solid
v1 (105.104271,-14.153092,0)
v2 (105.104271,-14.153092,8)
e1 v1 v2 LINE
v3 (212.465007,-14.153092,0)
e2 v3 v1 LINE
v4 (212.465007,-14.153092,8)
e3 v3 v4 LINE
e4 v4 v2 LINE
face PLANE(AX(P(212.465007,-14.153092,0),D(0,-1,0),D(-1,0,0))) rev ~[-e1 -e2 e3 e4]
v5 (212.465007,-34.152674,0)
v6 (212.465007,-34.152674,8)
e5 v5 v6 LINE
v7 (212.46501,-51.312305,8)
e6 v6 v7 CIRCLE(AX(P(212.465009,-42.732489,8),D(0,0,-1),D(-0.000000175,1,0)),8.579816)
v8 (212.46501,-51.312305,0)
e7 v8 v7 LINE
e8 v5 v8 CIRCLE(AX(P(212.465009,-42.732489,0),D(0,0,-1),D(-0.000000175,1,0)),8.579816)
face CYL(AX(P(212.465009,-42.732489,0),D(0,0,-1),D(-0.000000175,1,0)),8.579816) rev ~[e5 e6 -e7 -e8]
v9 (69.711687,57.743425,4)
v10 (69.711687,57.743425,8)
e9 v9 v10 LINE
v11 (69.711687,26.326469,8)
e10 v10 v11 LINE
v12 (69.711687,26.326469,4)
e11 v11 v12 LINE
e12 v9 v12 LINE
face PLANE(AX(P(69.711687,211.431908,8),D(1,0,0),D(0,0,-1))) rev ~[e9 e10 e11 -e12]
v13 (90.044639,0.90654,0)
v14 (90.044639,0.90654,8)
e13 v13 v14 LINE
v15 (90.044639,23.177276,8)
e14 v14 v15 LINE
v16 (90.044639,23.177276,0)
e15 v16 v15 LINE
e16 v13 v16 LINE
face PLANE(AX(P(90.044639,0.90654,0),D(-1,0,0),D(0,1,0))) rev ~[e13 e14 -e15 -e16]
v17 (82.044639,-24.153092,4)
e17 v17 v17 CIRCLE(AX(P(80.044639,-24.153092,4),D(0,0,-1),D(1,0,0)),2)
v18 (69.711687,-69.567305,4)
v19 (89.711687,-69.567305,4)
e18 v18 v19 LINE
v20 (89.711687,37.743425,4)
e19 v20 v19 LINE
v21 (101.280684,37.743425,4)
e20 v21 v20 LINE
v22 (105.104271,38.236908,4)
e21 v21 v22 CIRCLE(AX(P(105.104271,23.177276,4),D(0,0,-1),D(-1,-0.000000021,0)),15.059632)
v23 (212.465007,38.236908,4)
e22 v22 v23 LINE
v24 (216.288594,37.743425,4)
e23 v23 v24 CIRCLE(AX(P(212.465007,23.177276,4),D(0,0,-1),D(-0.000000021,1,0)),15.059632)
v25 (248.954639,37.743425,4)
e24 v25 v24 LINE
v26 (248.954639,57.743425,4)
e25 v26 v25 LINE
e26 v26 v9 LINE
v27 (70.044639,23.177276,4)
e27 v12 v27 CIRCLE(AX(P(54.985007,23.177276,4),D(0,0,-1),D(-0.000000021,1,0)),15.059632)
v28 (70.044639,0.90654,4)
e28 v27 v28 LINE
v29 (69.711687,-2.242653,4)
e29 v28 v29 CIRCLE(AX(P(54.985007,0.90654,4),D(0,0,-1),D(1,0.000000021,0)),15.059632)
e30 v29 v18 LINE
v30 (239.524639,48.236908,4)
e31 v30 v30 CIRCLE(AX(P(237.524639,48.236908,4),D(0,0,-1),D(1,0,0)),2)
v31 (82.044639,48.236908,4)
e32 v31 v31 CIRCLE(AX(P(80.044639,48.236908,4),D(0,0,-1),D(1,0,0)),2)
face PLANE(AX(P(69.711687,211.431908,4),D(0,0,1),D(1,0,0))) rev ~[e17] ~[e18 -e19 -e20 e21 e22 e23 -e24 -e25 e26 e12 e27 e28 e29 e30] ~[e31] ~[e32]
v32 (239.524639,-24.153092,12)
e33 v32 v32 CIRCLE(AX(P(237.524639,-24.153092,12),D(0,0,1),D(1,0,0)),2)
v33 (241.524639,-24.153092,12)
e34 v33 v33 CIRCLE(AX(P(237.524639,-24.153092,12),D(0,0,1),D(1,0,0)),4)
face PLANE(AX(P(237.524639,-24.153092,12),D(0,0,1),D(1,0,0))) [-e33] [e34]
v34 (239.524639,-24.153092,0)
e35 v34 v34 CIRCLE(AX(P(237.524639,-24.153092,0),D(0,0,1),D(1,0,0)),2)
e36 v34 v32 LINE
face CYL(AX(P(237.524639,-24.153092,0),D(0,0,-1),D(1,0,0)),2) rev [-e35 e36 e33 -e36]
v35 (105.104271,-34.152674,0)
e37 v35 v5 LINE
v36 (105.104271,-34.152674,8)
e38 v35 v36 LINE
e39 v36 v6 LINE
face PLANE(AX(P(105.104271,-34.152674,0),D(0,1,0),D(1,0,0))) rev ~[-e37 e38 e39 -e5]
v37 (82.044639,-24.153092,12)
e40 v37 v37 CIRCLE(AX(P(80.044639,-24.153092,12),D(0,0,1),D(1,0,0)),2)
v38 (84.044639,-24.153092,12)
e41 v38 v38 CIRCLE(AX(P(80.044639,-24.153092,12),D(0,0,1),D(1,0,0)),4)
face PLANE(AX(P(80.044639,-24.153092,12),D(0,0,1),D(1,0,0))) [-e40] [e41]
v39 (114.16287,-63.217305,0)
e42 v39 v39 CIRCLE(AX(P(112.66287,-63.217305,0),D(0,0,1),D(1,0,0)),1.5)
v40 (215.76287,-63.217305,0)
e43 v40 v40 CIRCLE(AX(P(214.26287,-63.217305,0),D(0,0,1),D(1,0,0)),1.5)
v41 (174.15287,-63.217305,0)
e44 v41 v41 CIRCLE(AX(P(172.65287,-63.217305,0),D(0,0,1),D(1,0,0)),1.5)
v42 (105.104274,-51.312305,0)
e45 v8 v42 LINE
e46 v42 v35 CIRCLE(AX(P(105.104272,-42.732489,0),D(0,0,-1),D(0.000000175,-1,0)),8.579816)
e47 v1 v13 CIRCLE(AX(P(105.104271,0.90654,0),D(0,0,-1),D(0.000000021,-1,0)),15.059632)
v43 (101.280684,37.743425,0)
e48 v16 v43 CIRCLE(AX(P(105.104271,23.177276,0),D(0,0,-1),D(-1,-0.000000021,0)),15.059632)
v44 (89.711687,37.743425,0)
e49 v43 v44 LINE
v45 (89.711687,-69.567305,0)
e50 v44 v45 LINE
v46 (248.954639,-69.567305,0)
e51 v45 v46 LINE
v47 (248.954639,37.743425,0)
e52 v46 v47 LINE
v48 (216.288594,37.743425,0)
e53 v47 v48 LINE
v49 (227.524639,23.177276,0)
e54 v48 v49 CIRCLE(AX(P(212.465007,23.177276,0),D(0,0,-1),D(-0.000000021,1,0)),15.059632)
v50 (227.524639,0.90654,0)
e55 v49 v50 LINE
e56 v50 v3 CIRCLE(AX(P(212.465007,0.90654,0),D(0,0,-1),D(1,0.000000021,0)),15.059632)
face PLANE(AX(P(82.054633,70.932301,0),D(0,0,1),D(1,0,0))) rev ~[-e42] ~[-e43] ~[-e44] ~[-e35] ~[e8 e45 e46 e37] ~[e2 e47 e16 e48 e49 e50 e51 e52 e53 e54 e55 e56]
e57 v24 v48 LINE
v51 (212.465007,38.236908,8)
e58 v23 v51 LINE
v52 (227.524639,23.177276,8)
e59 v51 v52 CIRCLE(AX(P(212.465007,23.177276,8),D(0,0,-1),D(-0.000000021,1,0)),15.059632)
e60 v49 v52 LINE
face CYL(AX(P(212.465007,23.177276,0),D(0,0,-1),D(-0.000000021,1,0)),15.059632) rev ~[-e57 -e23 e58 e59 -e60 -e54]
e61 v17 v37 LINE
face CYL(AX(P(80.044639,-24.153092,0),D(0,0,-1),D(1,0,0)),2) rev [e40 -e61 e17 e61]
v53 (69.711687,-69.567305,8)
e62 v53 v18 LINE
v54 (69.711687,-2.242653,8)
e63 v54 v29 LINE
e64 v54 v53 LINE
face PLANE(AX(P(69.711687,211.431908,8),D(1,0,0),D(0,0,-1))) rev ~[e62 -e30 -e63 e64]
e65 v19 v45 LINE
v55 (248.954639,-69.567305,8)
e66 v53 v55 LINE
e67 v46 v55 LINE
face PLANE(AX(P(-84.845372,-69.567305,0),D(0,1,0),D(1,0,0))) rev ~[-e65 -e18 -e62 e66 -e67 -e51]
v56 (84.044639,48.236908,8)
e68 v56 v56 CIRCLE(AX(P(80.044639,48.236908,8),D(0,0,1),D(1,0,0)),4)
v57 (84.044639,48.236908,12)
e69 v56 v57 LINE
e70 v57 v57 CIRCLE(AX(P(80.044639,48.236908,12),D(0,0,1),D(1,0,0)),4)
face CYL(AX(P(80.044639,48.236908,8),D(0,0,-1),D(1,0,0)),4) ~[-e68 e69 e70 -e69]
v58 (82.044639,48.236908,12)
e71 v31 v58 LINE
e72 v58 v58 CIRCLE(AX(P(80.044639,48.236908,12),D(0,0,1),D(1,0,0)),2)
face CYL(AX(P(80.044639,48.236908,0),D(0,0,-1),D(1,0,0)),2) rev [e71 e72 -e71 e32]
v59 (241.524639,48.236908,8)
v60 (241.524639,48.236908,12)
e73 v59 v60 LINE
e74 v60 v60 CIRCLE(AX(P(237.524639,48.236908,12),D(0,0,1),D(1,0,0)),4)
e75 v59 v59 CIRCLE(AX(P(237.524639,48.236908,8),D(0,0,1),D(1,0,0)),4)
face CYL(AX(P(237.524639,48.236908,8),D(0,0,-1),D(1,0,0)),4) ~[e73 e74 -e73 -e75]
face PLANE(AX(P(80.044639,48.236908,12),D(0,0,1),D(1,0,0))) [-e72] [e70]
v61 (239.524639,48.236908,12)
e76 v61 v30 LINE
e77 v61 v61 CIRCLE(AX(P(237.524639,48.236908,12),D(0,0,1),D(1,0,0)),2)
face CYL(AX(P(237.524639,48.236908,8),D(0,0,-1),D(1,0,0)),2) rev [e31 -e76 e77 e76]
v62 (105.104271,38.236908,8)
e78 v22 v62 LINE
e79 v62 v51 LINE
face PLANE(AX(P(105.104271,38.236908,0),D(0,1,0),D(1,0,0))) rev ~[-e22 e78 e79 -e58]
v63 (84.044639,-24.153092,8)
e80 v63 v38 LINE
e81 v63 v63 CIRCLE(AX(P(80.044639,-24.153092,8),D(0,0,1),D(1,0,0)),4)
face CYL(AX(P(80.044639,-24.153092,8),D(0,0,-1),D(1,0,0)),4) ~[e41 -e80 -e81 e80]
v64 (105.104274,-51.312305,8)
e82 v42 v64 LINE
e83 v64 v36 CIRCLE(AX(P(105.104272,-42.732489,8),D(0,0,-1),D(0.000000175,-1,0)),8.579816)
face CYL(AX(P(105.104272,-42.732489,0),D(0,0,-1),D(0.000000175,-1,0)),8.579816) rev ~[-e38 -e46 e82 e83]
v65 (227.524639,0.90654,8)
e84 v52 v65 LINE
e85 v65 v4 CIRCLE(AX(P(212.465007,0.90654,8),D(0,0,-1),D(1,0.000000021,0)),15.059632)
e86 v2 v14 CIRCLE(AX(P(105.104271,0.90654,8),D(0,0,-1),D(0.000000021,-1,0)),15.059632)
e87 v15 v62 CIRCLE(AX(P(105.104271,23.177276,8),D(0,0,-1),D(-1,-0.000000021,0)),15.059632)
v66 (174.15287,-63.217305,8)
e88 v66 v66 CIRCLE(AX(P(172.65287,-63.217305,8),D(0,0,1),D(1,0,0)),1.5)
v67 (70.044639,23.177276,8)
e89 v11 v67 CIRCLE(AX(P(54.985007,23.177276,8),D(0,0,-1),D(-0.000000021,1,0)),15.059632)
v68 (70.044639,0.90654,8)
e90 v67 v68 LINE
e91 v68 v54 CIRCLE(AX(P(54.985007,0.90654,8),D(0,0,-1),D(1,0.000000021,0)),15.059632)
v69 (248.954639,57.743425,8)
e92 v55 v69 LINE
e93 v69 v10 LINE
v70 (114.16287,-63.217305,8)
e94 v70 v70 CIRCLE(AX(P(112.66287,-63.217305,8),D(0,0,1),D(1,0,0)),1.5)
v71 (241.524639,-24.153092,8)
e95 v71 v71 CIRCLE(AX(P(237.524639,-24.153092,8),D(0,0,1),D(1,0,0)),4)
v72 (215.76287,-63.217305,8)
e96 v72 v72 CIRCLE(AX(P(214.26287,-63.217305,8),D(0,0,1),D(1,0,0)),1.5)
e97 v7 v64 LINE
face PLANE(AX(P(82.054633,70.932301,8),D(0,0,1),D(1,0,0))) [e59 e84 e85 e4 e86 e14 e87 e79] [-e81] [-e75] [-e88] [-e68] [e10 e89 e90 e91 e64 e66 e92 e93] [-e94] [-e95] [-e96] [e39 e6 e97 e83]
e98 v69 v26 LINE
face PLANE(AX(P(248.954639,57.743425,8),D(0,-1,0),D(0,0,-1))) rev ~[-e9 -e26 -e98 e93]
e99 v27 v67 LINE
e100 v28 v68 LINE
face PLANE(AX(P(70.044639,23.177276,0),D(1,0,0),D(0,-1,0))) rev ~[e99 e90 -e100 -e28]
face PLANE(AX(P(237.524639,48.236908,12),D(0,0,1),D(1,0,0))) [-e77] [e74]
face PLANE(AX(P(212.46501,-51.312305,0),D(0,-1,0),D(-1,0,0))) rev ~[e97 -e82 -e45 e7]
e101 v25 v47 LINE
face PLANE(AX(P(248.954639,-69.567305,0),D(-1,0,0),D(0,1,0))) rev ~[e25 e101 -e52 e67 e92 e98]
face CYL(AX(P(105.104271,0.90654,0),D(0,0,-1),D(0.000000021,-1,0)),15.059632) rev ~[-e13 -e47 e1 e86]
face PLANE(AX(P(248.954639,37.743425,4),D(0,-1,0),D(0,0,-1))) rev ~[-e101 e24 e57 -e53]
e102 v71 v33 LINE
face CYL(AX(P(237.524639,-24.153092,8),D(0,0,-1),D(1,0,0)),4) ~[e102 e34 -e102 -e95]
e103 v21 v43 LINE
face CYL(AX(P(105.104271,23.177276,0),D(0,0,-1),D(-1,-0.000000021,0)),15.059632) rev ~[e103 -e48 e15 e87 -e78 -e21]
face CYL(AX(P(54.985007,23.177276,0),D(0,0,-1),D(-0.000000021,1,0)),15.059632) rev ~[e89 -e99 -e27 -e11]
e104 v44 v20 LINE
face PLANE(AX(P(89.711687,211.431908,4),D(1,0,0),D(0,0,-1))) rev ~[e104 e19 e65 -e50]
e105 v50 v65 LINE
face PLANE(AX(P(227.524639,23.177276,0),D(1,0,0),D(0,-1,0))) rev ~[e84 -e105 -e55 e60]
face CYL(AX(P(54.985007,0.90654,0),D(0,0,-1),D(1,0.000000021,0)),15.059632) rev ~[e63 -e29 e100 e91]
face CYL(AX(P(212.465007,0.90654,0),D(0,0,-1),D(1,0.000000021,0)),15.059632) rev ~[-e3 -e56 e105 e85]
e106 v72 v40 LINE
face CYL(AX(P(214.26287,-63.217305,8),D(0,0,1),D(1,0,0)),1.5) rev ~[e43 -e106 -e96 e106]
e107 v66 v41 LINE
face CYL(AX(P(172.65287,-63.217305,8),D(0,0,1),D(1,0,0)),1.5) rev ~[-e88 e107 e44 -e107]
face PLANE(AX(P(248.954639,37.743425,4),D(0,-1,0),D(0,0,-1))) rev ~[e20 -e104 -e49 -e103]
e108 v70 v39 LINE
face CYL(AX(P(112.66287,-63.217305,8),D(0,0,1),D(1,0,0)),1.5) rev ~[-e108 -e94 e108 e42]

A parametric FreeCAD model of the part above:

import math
import FreeCAD as App
import Part
import Sketcher
Q = App.Units.Quantity


def add_polygon(sketch, points):
    """Adds a closed chain of lines whose ends are joined by coincident constraints."""
    first, n = sketch.GeometryCount, len(points)
    for a, b in zip(points, points[1:] + points[:1]):
        sketch.addGeometry(Part.LineSegment(App.Vector(*a, 0), App.Vector(*b, 0)), False)
    for i in range(n):
        sketch.addConstraint(Sketcher.Constraint("Coincident", first + i, 2, first + (i + 1) % n, 1))

doc = App.newDocument("Part")
params = doc.addObject("Spreadsheet::Sheet", "Params")
for row, (alias, value) in enumerate([
    ("sketch1_diameter", "4 mm"),
    ("sketch1_height", "22.86 mm"),
    ("pad1_length", "8 mm"),
    ("sketch2_width", "100 mm"),
    ("sketch2_width2", "3 mm"),
    ("sketch2_height", "140 mm"),
    ("pad2_length", "185 mm"),
    ("sketch3_width", "135 mm"),
    ("sketch3_height", "153 mm"),
    ("pocket1_length", "5 mm"),
    ("sketch4_diameter", "5 mm"),
    ("sketch4_width", "65 mm"),
    ("sketch4_height", "93 mm"),
    ("sketch4_height2", "30 mm"),
    ("sketch4_width2", "62.5 mm"),
    ("pocket2_length", "5 mm"),
    ("sketch5_width", "96 mm"),
    ("pad3_length", "3 mm"),
    ("sketch6_diameter", "8 mm"),
    ("sketch6_diameter2", "4 mm"),
    ("pad4_length", "4 mm"),
    ("sketch7_width", "20 mm"),
    ("sketch7_height", "4 mm"),
    ("pocket3_length", "340 mm"),
    ("sketch8_width", "20 mm"),
    ("sketch8_height", "4 mm"),
    ("pocket4_length", "320 mm"),
    ("sketch9_diameter", "3 mm"),
    ("pocket5_length", "25 mm"),
], start=1):
    params.set(f"A{row}", alias)
    params.set(f"B{row}", "=" + value)
    params.setAlias(f"B{row}", alias)

body = doc.addObject("PartDesign::Body", "Body")
body.AllowCompound = True

# Sketch on XY plane
sketch1 = body.newObject("Sketcher::SketchObject", "Sketch")
sketch1.AttachmentSupport = (doc.getObject("XY_Plane"), [""])
sketch1.MapMode = "FlatFace"
add_polygon(sketch1, [(249, 211.4), (-84.8, 211.4), (-84.8, -69.6), (249, -69.6)])  # lines 0-3
sketch1.addGeometry(Part.Circle(App.Vector(-44.4, -24.2, 0), App.Vector(0, 0, 1), 2), False)  # 4
sketch1.addGeometry(Part.ArcOfCircle(Part.Circle(App.Vector(-60.3, 33.2, 0), App.Vector(0, 0, 1), 5.9), math.radians(0), math.radians(180)), False)  # 5
sketch1.addGeometry(Part.LineSegment(App.Vector(-54.4, 33.2, 0), App.Vector(-54.4, -42.7, 0)), False)  # 6
sketch1.addGeometry(Part.ArcOfCircle(Part.Circle(App.Vector(-60.3, -42.7, 0), App.Vector(0, 0, 1), 5.9), math.radians(180), math.radians(360)), False)  # 7
sketch1.addGeometry(Part.LineSegment(App.Vector(-66.3, -42.7, 0), App.Vector(-66.3, 33.2, 0)), False)  # 8
sketch1.addGeometry(Part.ArcOfCircle(Part.Circle(App.Vector(-19.4, -42.7, 0), App.Vector(0, 0, 1), 8.6), math.radians(90), math.radians(270)), False)  # 9
sketch1.addGeometry(Part.LineSegment(App.Vector(-19.4, -34.2, 0), App.Vector(55, -34.2, 0)), False)  # 10
sketch1.addGeometry(Part.ArcOfCircle(Part.Circle(App.Vector(55, -42.7, 0), App.Vector(0, 0, 1), 8.6), math.radians(-90), math.radians(90)), False)  # 11
sketch1.addGeometry(Part.LineSegment(App.Vector(55, -51.3, 0), App.Vector(-19.4, -51.3, 0)), False)  # 12
sketch1.addGeometry(Part.Circle(App.Vector(80, -24.2, 0), App.Vector(0, 0, 1), 2), False)  # 13
sketch1.addGeometry(Part.LineSegment(App.Vector(-34.4, 0.9, 0), App.Vector(-34.4, 23.2, 0)), False)  # 14
sketch1.addGeometry(Part.ArcOfCircle(Part.Circle(App.Vector(-19.4, 23.2, 0), App.Vector(0, 0, 1), 15.1), math.radians(90), math.radians(180)), False)  # 15
sketch1.addGeometry(Part.LineSegment(App.Vector(-19.4, 38.2, 0), App.Vector(55, 38.2, 0)), False)  # 16
sketch1.addGeometry(Part.ArcOfCircle(Part.Circle(App.Vector(55, 23.2, 0), App.Vector(0, 0, 1), 15.1), math.radians(0), math.radians(90)), False)  # 17
sketch1.addGeometry(Part.LineSegment(App.Vector(70, 23.2, 0), App.Vector(70, 0.9, 0)), False)  # 18
sketch1.addGeometry(Part.ArcOfCircle(Part.Circle(App.Vector(55, 0.9, 0), App.Vector(0, 0, 1), 15.1), math.radians(-90), math.radians(0)), False)  # 19
sketch1.addGeometry(Part.LineSegment(App.Vector(55, -14.2, 0), App.Vector(-19.4, -14.2, 0)), False)  # 20
sketch1.addGeometry(Part.ArcOfCircle(Part.Circle(App.Vector(-19.4, 0.9, 0), App.Vector(0, 0, 1), 15.1), math.radians(180), math.radians(270)), False)  # 21
sketch1.addGeometry(Part.Circle(App.Vector(-44.4, 48.2, 0), App.Vector(0, 0, 1), 2), False)  # 22
sketch1.addGeometry(Part.Circle(App.Vector(80, 48.2, 0), App.Vector(0, 0, 1), 2), False)  # 23
sketch1.addGeometry(Part.LineSegment(App.Vector(105.1, -34.2, 0), App.Vector(212.5, -34.2, 0)), False)  # 24
sketch1.addGeometry(Part.ArcOfCircle(Part.Circle(App.Vector(212.5, -42.7, 0), App.Vector(0, 0, 1), 8.6), math.radians(-90), math.radians(90)), False)  # 25
sketch1.addGeometry(Part.LineSegment(App.Vector(212.5, -51.3, 0), App.Vector(105.1, -51.3, 0)), False)  # 26
sketch1.addGeometry(Part.ArcOfCircle(Part.Circle(App.Vector(105.1, -42.7, 0), App.Vector(0, 0, 1), 8.6), math.radians(90), math.radians(270)), False)  # 27
sketch1.addGeometry(Part.ArcOfCircle(Part.Circle(App.Vector(105.1, 0.9, 0), App.Vector(0, 0, 1), 15.1), math.radians(180), math.radians(270)), False)  # 28
sketch1.addGeometry(Part.LineSegment(App.Vector(90, 0.9, 0), App.Vector(90, 23.2, 0)), False)  # 29
sketch1.addGeometry(Part.ArcOfCircle(Part.Circle(App.Vector(105.1, 23.2, 0), App.Vector(0, 0, 1), 15.1), math.radians(90), math.radians(180)), False)  # 30
sketch1.addGeometry(Part.LineSegment(App.Vector(105.1, 38.2, 0), App.Vector(212.5, 38.2, 0)), False)  # 31
sketch1.addGeometry(Part.ArcOfCircle(Part.Circle(App.Vector(212.5, 23.2, 0), App.Vector(0, 0, 1), 15.1), math.radians(0), math.radians(90)), False)  # 32
sketch1.addGeometry(Part.LineSegment(App.Vector(227.5, 23.2, 0), App.Vector(227.5, 0.9, 0)), False)  # 33
sketch1.addGeometry(Part.ArcOfCircle(Part.Circle(App.Vector(212.5, 0.9, 0), App.Vector(0, 0, 1), 15.1), math.radians(-90), math.radians(0)), False)  # 34
sketch1.addGeometry(Part.LineSegment(App.Vector(212.5, -14.2, 0), App.Vector(105.1, -14.2, 0)), False)  # 35
sketch1.addGeometry(Part.Circle(App.Vector(237.5, -24.2, 0), App.Vector(0, 0, 1), 2), False)  # 36
sketch1.addGeometry(Part.Circle(App.Vector(237.5, 48.2, 0), App.Vector(0, 0, 1), 2), False)  # 37
sketch1.addGeometry(Part.ArcOfCircle(Part.Circle(App.Vector(-60.3, 180.3, 0), App.Vector(0, 0, 1), 5.9), math.radians(0), math.radians(180)), False)  # 38
sketch1.addGeometry(Part.LineSegment(App.Vector(-54.4, 180.3, 0), App.Vector(-54.4, 63.3, 0)), False)  # 39
sketch1.addGeometry(Part.ArcOfCircle(Part.Circle(App.Vector(-60.3, 63.3, 0), App.Vector(0, 0, 1), 5.9), math.radians(180), math.radians(360)), False)  # 40
sketch1.addGeometry(Part.LineSegment(App.Vector(-66.3, 63.3, 0), App.Vector(-66.3, 180.3, 0)), False)  # 41
sketch1.addGeometry(Part.ArcOfCircle(Part.Circle(App.Vector(-19.4, 73.3, 0), App.Vector(0, 0, 1), 15.1), math.radians(180), math.radians(270)), False)  # 42
sketch1.addGeometry(Part.LineSegment(App.Vector(-34.4, 73.3, 0), App.Vector(-34.4, 178.1, 0)), False)  # 43
sketch1.addGeometry(Part.ArcOfCircle(Part.Circle(App.Vector(-19.4, 178.1, 0), App.Vector(0, 0, 1), 15.1), math.radians(90), math.radians(180)), False)  # 44
sketch1.addGeometry(Part.LineSegment(App.Vector(-19.4, 193.2, 0), App.Vector(55, 193.2, 0)), False)  # 45
sketch1.addGeometry(Part.ArcOfCircle(Part.Circle(App.Vector(55, 178.1, 0), App.Vector(0, 0, 1), 15.1), math.radians(0), math.radians(90)), False)  # 46
sketch1.addGeometry(Part.LineSegment(App.Vector(70, 178.1, 0), App.Vector(70, 73.3, 0)), False)  # 47
sketch1.addGeometry(Part.ArcOfCircle(Part.Circle(App.Vector(55, 73.3, 0), App.Vector(0, 0, 1), 15.1), math.radians(-90), math.radians(0)), False)  # 48
sketch1.addGeometry(Part.LineSegment(App.Vector(55, 58.2, 0), App.Vector(-19.4, 58.2, 0)), False)  # 49
sketch1.addGeometry(Part.Circle(App.Vector(-44.4, 203.2, 0), App.Vector(0, 0, 1), 2), False)  # 50
sketch1.addGeometry(Part.Circle(App.Vector(80, 203.2, 0), App.Vector(0, 0, 1), 2), False)  # 51
sketch1.addGeometry(Part.LineSegment(App.Vector(227.5, 155.3, 0), App.Vector(227.5, 73.3, 0)), False)  # 52
sketch1.addGeometry(Part.ArcOfCircle(Part.Circle(App.Vector(212.5, 73.3, 0), App.Vector(0, 0, 1), 15.1), math.radians(-90), math.radians(0)), False)  # 53
sketch1.addGeometry(Part.LineSegment(App.Vector(212.5, 58.2, 0), App.Vector(105.1, 58.2, 0)), False)  # 54
sketch1.addGeometry(Part.ArcOfCircle(Part.Circle(App.Vector(105.1, 73.3, 0), App.Vector(0, 0, 1), 15.1), math.radians(180), math.radians(270)), False)  # 55
sketch1.addGeometry(Part.LineSegment(App.Vector(90, 73.3, 0), App.Vector(90, 178.1, 0)), False)  # 56
sketch1.addGeometry(Part.ArcOfCircle(Part.Circle(App.Vector(105.1, 178.1, 0), App.Vector(0, 0, 1), 15.1), math.radians(90), math.radians(180)), False)  # 57
sketch1.addGeometry(Part.LineSegment(App.Vector(105.1, 193.2, 0), App.Vector(212.5, 193.2, 0)), False)  # 58
sketch1.addGeometry(Part.LineSegment(App.Vector(212.5, 193.2, 0), App.Vector(212.5, 170.3, 0)), False)  # 59
sketch1.addGeometry(Part.ArcOfCircle(Part.Circle(App.Vector(212.5, 155.3, 0), App.Vector(0, 0, 1), 15.1), math.radians(0), math.radians(90)), False)  # 60
sketch1.addGeometry(Part.Circle(App.Vector(237.5, 180.3, 0), App.Vector(0, 0, 1), 2), False)  # 61
sketch1.addConstraint([
    Sketcher.Constraint("Tangent", 5, 1, 6, 1),
    Sketcher.Constraint("Tangent", 6, 2, 7, 2),
    Sketcher.Constraint("Tangent", 7, 1, 8, 1),
    Sketcher.Constraint("Tangent", 8, 2, 5, 2),
    Sketcher.Constraint("Tangent", 9, 1, 10, 1),
    Sketcher.Constraint("Tangent", 10, 2, 11, 2),
    Sketcher.Constraint("Tangent", 11, 1, 12, 1),
    Sketcher.Constraint("Tangent", 12, 2, 9, 2),
    Sketcher.Constraint("Tangent", 14, 2, 15, 2),
    Sketcher.Constraint("Tangent", 15, 1, 16, 1),
    Sketcher.Constraint("Tangent", 16, 2, 17, 2),
    Sketcher.Constraint("Tangent", 17, 1, 18, 1),
    Sketcher.Constraint("Tangent", 18, 2, 19, 2),
    Sketcher.Constraint("Tangent", 19, 1, 20, 1),
    Sketcher.Constraint("Tangent", 20, 2, 21, 2),
    Sketcher.Constraint("Tangent", 21, 1, 14, 1),
    Sketcher.Constraint("Tangent", 24, 2, 25, 2),
    Sketcher.Constraint("Tangent", 25, 1, 26, 1),
    Sketcher.Constraint("Tangent", 26, 2, 27, 2),
    Sketcher.Constraint("Tangent", 27, 1, 24, 1),
    Sketcher.Constraint("Tangent", 28, 1, 29, 1),
    Sketcher.Constraint("Tangent", 29, 2, 30, 2),
    Sketcher.Constraint("Tangent", 30, 1, 31, 1),
    Sketcher.Constraint("Tangent", 31, 2, 32, 2),
    Sketcher.Constraint("Tangent", 32, 1, 33, 1),
    Sketcher.Constraint("Tangent", 33, 2, 34, 2),
    Sketcher.Constraint("Tangent", 34, 1, 35, 1),
    Sketcher.Constraint("Tangent", 35, 2, 28, 2),
    Sketcher.Constraint("Tangent", 38, 1, 39, 1),
    Sketcher.Constraint("Tangent", 39, 2, 40, 2),
    Sketcher.Constraint("Tangent", 40, 1, 41, 1),
    Sketcher.Constraint("Tangent", 41, 2, 38, 2),
    Sketcher.Constraint("Tangent", 42, 1, 43, 1),
    Sketcher.Constraint("Tangent", 43, 2, 44, 2),
    Sketcher.Constraint("Tangent", 44, 1, 45, 1),
    Sketcher.Constraint("Tangent", 45, 2, 46, 2),
    Sketcher.Constraint("Tangent", 46, 1, 47, 1),
    Sketcher.Constraint("Tangent", 47, 2, 48, 2),
    Sketcher.Constraint("Tangent", 48, 1, 49, 1),
    Sketcher.Constraint("Tangent", 49, 2, 42, 2),
    Sketcher.Constraint("Tangent", 52, 2, 53, 2),
    Sketcher.Constraint("Tangent", 53, 1, 54, 1),
    Sketcher.Constraint("Tangent", 54, 2, 55, 2),
    Sketcher.Constraint("Tangent", 55, 1, 56, 1),
    Sketcher.Constraint("Tangent", 56, 2, 57, 2),
    Sketcher.Constraint("Tangent", 57, 1, 58, 1),
    Sketcher.Constraint("Coincident", 58, 2, 59, 1),
    Sketcher.Constraint("Coincident", 59, 2, 60, 2),
    Sketcher.Constraint("Tangent", 60, 1, 52, 1),
    Sketcher.Constraint("Horizontal", 0),
    Sketcher.Constraint("Vertical", 1),
    Sketcher.Constraint("Horizontal", 2),
    Sketcher.Constraint("Vertical", 3),
    Sketcher.Constraint("Vertical", 6),
    Sketcher.Constraint("Vertical", 8),
    Sketcher.Constraint("Horizontal", 10),
    Sketcher.Constraint("Horizontal", 12),
    Sketcher.Constraint("Vertical", 14),
    Sketcher.Constraint("Horizontal", 16),
    Sketcher.Constraint("Vertical", 18),
    Sketcher.Constraint("Horizontal", 20),
    Sketcher.Constraint("Horizontal", 24),
    Sketcher.Constraint("Horizontal", 26),
    Sketcher.Constraint("Vertical", 29),
    Sketcher.Constraint("Horizontal", 31),
    Sketcher.Constraint("Vertical", 33),
    Sketcher.Constraint("Horizontal", 35),
    Sketcher.Constraint("Vertical", 39),
    Sketcher.Constraint("Vertical", 41),
    Sketcher.Constraint("Vertical", 43),
    Sketcher.Constraint("Horizontal", 45),
    Sketcher.Constraint("Vertical", 47),
    Sketcher.Constraint("Horizontal", 49),
    Sketcher.Constraint("Vertical", 52),
    Sketcher.Constraint("Horizontal", 54),
    Sketcher.Constraint("Vertical", 56),
    Sketcher.Constraint("Horizontal", 58),
    Sketcher.Constraint("Vertical", 59),
    Sketcher.Constraint("Equal", 4, 13),
    Sketcher.Constraint("Equal", 15, 17),
    Sketcher.Constraint("Equal", 17, 19),
    Sketcher.Constraint("Equal", 19, 21),
    Sketcher.Constraint("Equal", 13, 22),
    Sketcher.Constraint("Equal", 22, 23),
    Sketcher.Constraint("Equal", 11, 25),
    Sketcher.Constraint("Equal", 21, 28),
    Sketcher.Constraint("Equal", 28, 30),
    Sketcher.Constraint("Equal", 30, 32),
    Sketcher.Constraint("Equal", 32, 34),
    Sketcher.Constraint("Equal", 23, 36),
    Sketcher.Constraint("Equal", 36, 37),
    Sketcher.Constraint("Equal", 7, 38),
    Sketcher.Constraint("Equal", 34, 42),
    Sketcher.Constraint("Equal", 42, 44),
    Sketcher.Constraint("Equal", 44, 46),
    Sketcher.Constraint("Equal", 46, 48),
    Sketcher.Constraint("Equal", 37, 50),
    Sketcher.Constraint("Equal", 50, 51),
    Sketcher.Constraint("Equal", 48, 53),
    Sketcher.Constraint("Equal", 53, 55),
    Sketcher.Constraint("Equal", 55, 57),
    Sketcher.Constraint("Equal", 57, 60),
    Sketcher.Constraint("Equal", 51, 61),
    Sketcher.Constraint("Horizontal", 7, 3, 9, 3),
    Sketcher.Constraint("Horizontal", 4, 3, 13, 3),
    Sketcher.Constraint("Horizontal", 22, 3, 23, 3),
    Sketcher.Constraint("Horizontal", 11, 3, 25, 3),
    Sketcher.Constraint("Horizontal", 21, 3, 28, 3),
    Sketcher.Constraint("Horizontal", 17, 3, 30, 3),
    Sketcher.Constraint("Horizontal", 13, 3, 36, 3),
    Sketcher.Constraint("Horizontal", 23, 3, 37, 3),
    Sketcher.Constraint("Horizontal", 50, 3, 51, 3),
    Sketcher.Constraint("Horizontal", 48, 3, 53, 3),
    Sketcher.Constraint("Horizontal", 46, 3, 57, 3),
    Sketcher.Constraint("Horizontal", 38, 3, 61, 3),
    Sketcher.Constraint("Vertical", 9, 3, 15, 3),
    Sketcher.Constraint("Vertical", 11, 3, 17, 3),
    Sketcher.Constraint("Vertical", 4, 3, 22, 3),
    Sketcher.Constraint("Vertical", 13, 3, 23, 3),
    Sketcher.Constraint("Vertical", 27, 3, 28, 3),
    Sketcher.Constraint("Vertical", 25, 3, 32, 3),
    Sketcher.Constraint("Vertical", 36, 3, 37, 3),
    Sketcher.Constraint("Vertical", 7, 3, 38, 3),
    Sketcher.Constraint("Vertical", 21, 3, 42, 3),
    Sketcher.Constraint("Vertical", 19, 3, 46, 3),
    Sketcher.Constraint("Vertical", 22, 3, 50, 3),
    Sketcher.Constraint("Vertical", 23, 3, 51, 3),
    Sketcher.Constraint("Vertical", 34, 3, 53, 3),
    Sketcher.Constraint("Vertical", 30, 3, 55, 3),
    Sketcher.Constraint("Vertical", 37, 3, 61, 3),
    Sketcher.Constraint("Vertical", 53, 1, 58, 2),
    Sketcher.Constraint("Diameter", 4, Q("4 mm")),
    Sketcher.Constraint("DistanceY", 59, 2, 59, 1, Q("22.86 mm")),
    Sketcher.Constraint("Radius", 15, Q("15.059632 mm")),
    Sketcher.Constraint("Radius", 5, Q("5.932132 mm")),
    Sketcher.Constraint("Radius", 9, Q("8.579816 mm")),
    Sketcher.Constraint("DistanceX", 0, 2, 0, 1, Q("333.800011 mm")),
    Sketcher.Constraint("DistanceY", 39, 2, 39, 1, Q("117.020368 mm")),
    Sketcher.Constraint("DistanceX", 10, 1, 10, 2, Q("74.340736 mm")),
    Sketcher.Constraint("DistanceX", 24, 1, 24, 2, Q("107.360736 mm")),
    Sketcher.Constraint("DistanceY", 1, 2, 1, 1, Q("280.999213 mm")),
    Sketcher.Constraint("DistanceY", 6, 2, 6, 1, Q("75.909765 mm")),
    Sketcher.Constraint("DistanceY", 14, 1, 14, 2, Q("22.270736 mm")),
    Sketcher.Constraint("DistanceY", 43, 1, 43, 2, Q("104.820736 mm")),
    Sketcher.Constraint("DistanceX", 4, 3, -1, 1, Q("44.415361 mm")),
    Sketcher.Constraint("DistanceY", 7, 3, -1, 1, Q("42.732489 mm")),
    Sketcher.Constraint("DistanceX", 9, 3, -1, 1, Q("19.35573 mm")),
    Sketcher.Constraint("DistanceX", -1, 1, 13, 3, Q("80.044639 mm")),
    Sketcher.Constraint("DistanceY", -1, 1, 19, 3, Q("0.90654 mm")),
    Sketcher.Constraint("DistanceX", -1, 1, 25, 3, Q("212.465009 mm")),
    Sketcher.Constraint("DistanceX", -1, 1, 36, 3, Q("237.524639 mm")),
    Sketcher.Constraint("DistanceY", -1, 1, 38, 3, Q("180.316908 mm")),
    Sketcher.Constraint("DistanceY", -1, 1, 42, 3, Q("73.29654 mm")),
    Sketcher.Constraint("DistanceY", -1, 1, 50, 3, Q("203.176908 mm")),
    Sketcher.Constraint("DistanceX", 0, 2, -1, 1, Q("84.845372 mm")),
    Sketcher.Constraint("DistanceY", -1, 1, 0, 2, Q("211.431908 mm")),
    Sketcher.Constraint("DistanceY", 4, 3, -1, 1, Q("24.153092 mm")),
    Sketcher.Constraint("DistanceX", 5, 3, -1, 1, Q("60.347495 mm")),
    Sketcher.Constraint("DistanceY", -1, 1, 22, 3, Q("48.236908 mm")),
])
sketch1.setExpression("Constraints[135]", "Params.sketch1_diameter")
sketch1.setExpression("Constraints[136]", "Params.sketch1_height")
pad1 = body.newObject("PartDesign::Pad", "Pad")
pad1.Profile = sketch1
pad1.setExpression("Length", "Params.pad1_length")

# Sketch on XY plane
sketch2 = body.newObject("Sketcher::SketchObject", "Sketch001")
sketch2.AttachmentSupport = (doc.getObject("XY_Plane"), [""])
sketch2.MapMode = "FlatFace"
sketch2.AttachmentOffset = App.Placement(App.Vector(0, 0, 8), App.Rotation())
add_polygon(sketch2, [(15.2, 211.4), (-84.8, 211.4), (-84.8, 71.4), (-81.8, 71.4), (-81.8, 208.4), (15.2, 208.4)])  # lines 0-5
sketch2.addConstraint([
    Sketcher.Constraint("Horizontal", 0),
    Sketcher.Constraint("Vertical", 1),
    Sketcher.Constraint("Horizontal", 2),
    Sketcher.Constraint("Vertical", 3),
    Sketcher.Constraint("Horizontal", 4),
    Sketcher.Constraint("Vertical", 5),
    Sketcher.Constraint("Equal", 2, 5),
    Sketcher.Constraint("DistanceX", 0, 2, 0, 1, Q("100 mm")),
    Sketcher.Constraint("DistanceX", 2, 1, 2, 2, Q("3 mm")),
    Sketcher.Constraint("DistanceY", 1, 2, 1, 1, Q("140 mm")),
    Sketcher.Constraint("DistanceX", 0, 2, -1, 1, Q("84.845372 mm")),
    Sketcher.Constraint("DistanceY", -1, 1, 0, 2, Q("211.431908 mm")),
])
sketch2.setExpression("Constraints[13]", "Params.sketch2_width")
sketch2.setExpression("Constraints[14]", "Params.sketch2_width2")
sketch2.setExpression("Constraints[15]", "Params.sketch2_height")
pad2 = body.newObject("PartDesign::Pad", "Pad001")
pad2.Profile = sketch2
pad2.setExpression("Length", "Params.pad2_length")

# Sketch on YZ plane
sketch3 = body.newObject("Sketcher::SketchObject", "Sketch002")
sketch3.AttachmentSupport = (doc.getObject("YZ_Plane"), [""])
sketch3.MapMode = "FlatFace"
sketch3.AttachmentOffset = App.Placement(App.Vector(0, 0, -84.845372), App.Rotation())
add_polygon(sketch3, [(169, 40), (201, 144), (201, 40)])  # lines 0-2
add_polygon(sketch3, [(71, 193), (206, 193), (159, 40), (71, 40)])  # lines 3-6
sketch3.addConstraint([
    Sketcher.Constraint("Vertical", 1),
    Sketcher.Constraint("Horizontal", 2),
    Sketcher.Constraint("Horizontal", 3),
    Sketcher.Constraint("Horizontal", 5),
    Sketcher.Constraint("Vertical", 6),
    Sketcher.Constraint("Parallel", 0, 4),
    Sketcher.Constraint("Horizontal", 2, 2, 4, 2),
    Sketcher.Constraint("DistanceX", 3, 1, 3, 2, Q("135 mm")),
    Sketcher.Constraint("DistanceY", 6, 1, 6, 2, Q("153 mm")),
    Sketcher.Constraint("DistanceY", -1, 1, 1, 2, Q("40 mm")),
    Sketcher.Constraint("DistanceX", 0, 2, 3, 2, Q("5 mm")),
    Sketcher.Constraint("DistanceX", 2, 2, 2, 1, Q("32.415739 mm")),
    Sketcher.Constraint("Distance", 0, Q("108.508392 mm")),
    Sketcher.Constraint("DistanceX", -1, 1, 0, 2, Q("201.431908 mm")),
])
sketch3.setExpression("Constraints[14]", "Params.sketch3_width")
sketch3.setExpression("Constraints[15]", "Params.sketch3_height")
pocket1 = body.newObject("PartDesign::Pocket", "Pocket")
pocket1.Profile = sketch3
pocket1.setExpression("Length", "Params.pocket1_length")
pocket1.Reversed = True

# Sketch on XZ plane
sketch4 = body.newObject("Sketcher::SketchObject", "Sketch003")
sketch4.AttachmentSupport = (doc.getObject("XZ_Plane"), [""])
sketch4.MapMode = "FlatFace"
sketch4.AttachmentOffset = App.Placement(App.Vector(0, 0, -211.431908), App.Rotation())
add_polygon(sketch4, [(-12.8, 83), (-12.8, 55.1), (-75.3, 55.1), (-75.3, 148.1), (-67.8, 148.1), (-67.8, 178.1), (-2.8, 178.1), (-1.3, 83.2)])  # lines 0-7
sketch4.addGeometry(Part.Circle(App.Vector(-11.3, 185.6, 0), App.Vector(0, 0, 1), 2.5), False)  # 8
sketch4.addGeometry(Part.Circle(App.Vector(-1.3, 185.6, 0), App.Vector(0, 0, 1), 2.5), False)  # 9
sketch4.addGeometry(Part.Circle(App.Vector(-75.3, 161.6, 0), App.Vector(0, 0, 1), 2.5), False)  # 10
sketch4.addGeometry(Part.Circle(App.Vector(-75.3, 185.6, 0), App.Vector(0, 0, 1), 2.5), False)  # 11
sketch4.addGeometry(Part.Circle(App.Vector(-75.3, 47.6, 0), App.Vector(0, 0, 1), 2.5), False)  # 12
sketch4.addGeometry(Part.Circle(App.Vector(-65.3, 47.6, 0), App.Vector(0, 0, 1), 2.5), False)  # 13
sketch4.addGeometry(Part.Circle(App.Vector(-1.3, 47.6, 0), App.Vector(0, 0, 1), 2.5), False)  # 14
sketch4.addGeometry(Part.Circle(App.Vector(-1.3, 71.6, 0), App.Vector(0, 0, 1), 2.5), False)  # 15
sketch4.addConstraint([
    Sketcher.Constraint("Vertical", 0),
    Sketcher.Constraint("Horizontal", 1),
    Sketcher.Constraint("Vertical", 2),
    Sketcher.Constraint("Horizontal", 3),
    Sketcher.Constraint("Vertical", 4),
    Sketcher.Constraint("Horizontal", 5),
    Sketcher.Constraint("Equal", 8, 9),
    Sketcher.Constraint("Equal", 9, 10),
    Sketcher.Constraint("Equal", 10, 11),
    Sketcher.Constraint("Equal", 11, 12),
    Sketcher.Constraint("Equal", 12, 13),
    Sketcher.Constraint("Equal", 13, 14),
    Sketcher.Constraint("Equal", 14, 15),
    Sketcher.Constraint("Perpendicular", 6, 7),
    Sketcher.Constraint("Horizontal", 8, 3, 9, 3),
    Sketcher.Constraint("Horizontal", 9, 3, 11, 3),
    Sketcher.Constraint("Horizontal", 12, 3, 13, 3),
    Sketcher.Constraint("Horizontal", 13, 3, 14, 3),
    Sketcher.Constraint("Vertical", 10, 3, 11, 3),
    Sketcher.Constraint("Vertical", 11, 3, 12, 3),
    Sketcher.Constraint("Vertical", 9, 3, 14, 3),
    Sketcher.Constraint("Vertical", 14, 3, 15, 3),
    Sketcher.Constraint("Vertical", 12, 3, 1, 2),
    Sketcher.Constraint("Vertical", 15, 3, 6, 2),
    Sketcher.Constraint("Diameter", 8, Q("5 mm")),
    Sketcher.Constraint("DistanceX", 5, 1, 5, 2, Q("65 mm")),
    Sketcher.Constraint("DistanceY", 2, 1, 2, 2, Q("93 mm")),
    Sketcher.Constraint("DistanceY", 4, 1, 4, 2, Q("30 mm")),
    Sketcher.Constraint("DistanceX", 1, 2, 1, 1, Q("62.5 mm")),
    Sketcher.Constraint("DistanceX", 3, 1, 3, 2, Q("7.5 mm")),
    Sketcher.Constraint("DistanceX", 8, 3, 9, 3, Q("10 mm")),
    Sketcher.Constraint("DistanceX", 10, 3, 8, 3, Q("64 mm")),
    Sketcher.Constraint("DistanceY", 10, 3, 8, 3, Q("24 mm")),
    Sketcher.Constraint("DistanceY", 12, 3, 10, 3, Q("114 mm")),
    Sketcher.Constraint("DistanceX", 12, 3, 13, 3, Q("10 mm")),
    Sketcher.Constraint("DistanceY", 14, 3, 15, 3, Q("24 mm")),
    Sketcher.Constraint("DistanceY", 14, 3, 0, 2, Q("7.5 mm")),
    Sketcher.Constraint("Distance", 6, Q("94.928769 mm")),
    Sketcher.Constraint("DistanceX", 8, 3, -1, 1, Q("11.345372 mm")),
    Sketcher.Constraint("DistanceY", -1, 1, 7, 2, Q("83.034229 mm")),
])
sketch4.setExpression("Constraints[32]", "Params.sketch4_diameter")
sketch4.setExpression("Constraints[33]", "Params.sketch4_width")
sketch4.setExpression("Constraints[34]", "Params.sketch4_height")
sketch4.setExpression("Constraints[35]", "Params.sketch4_height2")
sketch4.setExpression("Constraints[36]", "Params.sketch4_width2")
pocket2 = body.newObject("PartDesign::Pocket", "Pocket001")
pocket2.Profile = sketch4
pocket2.setExpression("Length", "Params.pocket2_length")
pocket2.Reversed = True

# Sketch on XY plane
sketch5 = body.newObject("Sketcher::SketchObject", "Sketch004")
sketch5.AttachmentSupport = (doc.getObject("XY_Plane"), [""])
sketch5.MapMode = "FlatFace"
sketch5.AttachmentOffset = App.Placement(App.Vector(0, 0, 40), App.Rotation())
add_polygon(sketch5, [(14.2, 208.5), (-81.8, 208.5), (-81.8, 71.5)])  # lines 0-2
add_polygon(sketch5, [(-5.1, 198.5), (-71.8, 103.2), (-71.8, 198.5)])  # lines 3-5
sketch5.addGeometry(Part.Circle(App.Vector(-44.4, 203.1, 0), App.Vector(0, 0, 1), 2), False)  # 6
sketch5.addConstraint([
    Sketcher.Constraint("Horizontal", 0),
    Sketcher.Constraint("Vertical", 1),
    Sketcher.Constraint("Vertical", 4),
    Sketcher.Constraint("Horizontal", 5),
    Sketcher.Constraint("Parallel", 2, 3),
    Sketcher.Constraint("DistanceX", 0, 2, 0, 1, Q("96 mm")),
    Sketcher.Constraint("DistanceX", 1, 2, 3, 2, Q("10 mm")),
    Sketcher.Constraint("DistanceY", 4, 2, 0, 2, Q("10 mm")),
    Sketcher.Constraint("Diameter", 6, Q("4.024508 mm")),
    Sketcher.Constraint("DistanceX", 5, 1, 5, 2, Q("66.779088 mm")),
    Sketcher.Constraint("DistanceY", 1, 2, 1, 1, Q("136.964358 mm")),
    Sketcher.Constraint("DistanceY", -1, 1, 6, 3, Q("203.142822 mm")),
    Sketcher.Constraint("DistanceX", 0, 2, -1, 1, Q("81.845372 mm")),
    Sketcher.Constraint("DistanceY", -1, 1, 1, 2, Q("71.523808 mm")),
    Sketcher.Constraint("DistanceX", 3, 2, 6, 3, Q("27.436768 mm")),
])
sketch5.setExpression("Constraints[11]", "Params.sketch5_width")
pad3 = body.newObject("PartDesign::Pad", "Pad002")
pad3.Profile = sketch5
pad3.setExpression("Length", "Params.pad3_length")
pad3.Reversed = True

# Sketch on XY plane
sketch6 = body.newObject("Sketcher::SketchObject", "Sketch005")
sketch6.AttachmentSupport = (doc.getObject("XY_Plane"), [""])
sketch6.MapMode = "FlatFace"
sketch6.AttachmentOffset = App.Placement(App.Vector(0, 0, 8), App.Rotation())
sketch6.addGeometry([
    Part.Circle(App.Vector(237.5, 48.2, 0), App.Vector(0, 0, 1), 4),  # 0
    Part.Circle(App.Vector(237.5, 48.2, 0), App.Vector(0, 0, 1), 2),  # 1
    Part.Circle(App.Vector(237.5, -24.2, 0), App.Vector(0, 0, 1), 4),  # 2
    Part.Circle(App.Vector(237.5, -24.2, 0), App.Vector(0, 0, 1), 2),  # 3
    Part.Circle(App.Vector(80, 48.2, 0), App.Vector(0, 0, 1), 4),  # 4
    Part.Circle(App.Vector(80, 48.2, 0), App.Vector(0, 0, 1), 2),  # 5
    Part.Circle(App.Vector(80, -24.2, 0), App.Vector(0, 0, 1), 4),  # 6
    Part.Circle(App.Vector(80, -24.2, 0), App.Vector(0, 0, 1), 2),  # 7
], False)
sketch6.addConstraint([
    Sketcher.Constraint("Coincident", 1, 3, 0, 3),
    Sketcher.Constraint("Coincident", 3, 3, 2, 3),
    Sketcher.Constraint("Coincident", 5, 3, 4, 3),
    Sketcher.Constraint("Coincident", 7, 3, 6, 3),
    Sketcher.Constraint("Equal", 0, 2),
    Sketcher.Constraint("Equal", 1, 3),
    Sketcher.Constraint("Equal", 2, 4),
    Sketcher.Constraint("Equal", 3, 5),
    Sketcher.Constraint("Equal", 4, 6),
    Sketcher.Constraint("Equal", 5, 7),
    Sketcher.Constraint("Horizontal", 1, 3, 4, 3),
    Sketcher.Constraint("Horizontal", 3, 3, 6, 3),
    Sketcher.Constraint("Vertical", 1, 3, 2, 3),
    Sketcher.Constraint("Vertical", 5, 3, 6, 3),
    Sketcher.Constraint("Diameter", 0, Q("8 mm")),
    Sketcher.Constraint("Diameter", 1, Q("4 mm")),
    Sketcher.Constraint("DistanceY", 2, 3, 0, 3, Q("72.39 mm")),
    Sketcher.Constraint("DistanceX", 4, 3, 0, 3, Q("157.48 mm")),
    Sketcher.Constraint("DistanceX", -1, 1, 0, 3, Q("237.524639 mm")),
    Sketcher.Constraint("DistanceY", -1, 1, 0, 3, Q("48.236908 mm")),
])
sketch6.setExpression("Constraints[14]", "Params.sketch6_diameter")
sketch6.setExpression("Constraints[15]", "Params.sketch6_diameter2")
pad4 = body.newObject("PartDesign::Pad", "Pad003")
pad4.Profile = sketch6
pad4.setExpression("Length", "Params.pad4_length")

# Sketch on YZ plane
sketch7 = body.newObject("Sketcher::SketchObject", "Sketch006")
sketch7.AttachmentSupport = (doc.getObject("YZ_Plane"), [""])
sketch7.MapMode = "FlatFace"
sketch7.AttachmentOffset = App.Placement(App.Vector(0, 0, 248.954639), App.Rotation())
add_polygon(sketch7, [(57.7, 4), (37.7, 4), (37.7, 0), (211.4, 0), (211.4, 8), (57.7, 8)])  # lines 0-5
sketch7.addConstraint([
    Sketcher.Constraint("Horizontal", 0),
    Sketcher.Constraint("Vertical", 1),
    Sketcher.Constraint("Horizontal", 2),
    Sketcher.Constraint("Vertical", 3),
    Sketcher.Constraint("Horizontal", 4),
    Sketcher.Constraint("Vertical", 5),
    Sketcher.Constraint("PointOnObject", 1, 2, -1),
    Sketcher.Constraint("Equal", 1, 5),
    Sketcher.Constraint("DistanceX", 0, 2, 0, 1, Q("20 mm")),
    Sketcher.Constraint("DistanceY", 1, 2, 1, 1, Q("4 mm")),
    Sketcher.Constraint("DistanceX", 2, 1, 2, 2, Q("173.688483 mm")),
    Sketcher.Constraint("DistanceX", -1, 1, 2, 2, Q("211.431908 mm")),
])
sketch7.setExpression("Constraints[14]", "Params.sketch7_width")
sketch7.setExpression("Constraints[15]", "Params.sketch7_height")
pocket3 = body.newObject("PartDesign::Pocket", "Pocket002")
pocket3.Profile = sketch7
pocket3.setExpression("Length", "Params.pocket3_length")

# Sketch on XZ plane
sketch8 = body.newObject("Sketcher::SketchObject", "Sketch007")
sketch8.AttachmentSupport = (doc.getObject("XZ_Plane"), [""])
sketch8.MapMode = "FlatFace"
sketch8.AttachmentOffset = App.Placement(App.Vector(0, 0, -211.431908), App.Rotation())
add_polygon(sketch8, [(69.7, 8), (69.7, 4), (89.7, 4), (89.7, 0), (-94, 0), (-94, 194.9), (20.8, 194.9), (20.8, 10.9)])  # lines 0-7
sketch8.addConstraint([
    Sketcher.Constraint("Vertical", 0),
    Sketcher.Constraint("Horizontal", 1),
    Sketcher.Constraint("Vertical", 2),
    Sketcher.Constraint("Horizontal", 3),
    Sketcher.Constraint("Vertical", 4),
    Sketcher.Constraint("Horizontal", 5),
    Sketcher.Constraint("Vertical", 6),
    Sketcher.Constraint("PointOnObject", 2, 2, -1),
    Sketcher.Constraint("Equal", 0, 2),
    Sketcher.Constraint("DistanceX", 1, 1, 1, 2, Q("20 mm")),
    Sketcher.Constraint("DistanceY", 0, 2, 0, 1, Q("4 mm")),
    Sketcher.Constraint("DistanceX", 5, 1, 5, 2, Q("114.72651 mm")),
    Sketcher.Constraint("Distance", 7, Q("49.044238 mm")),
    Sketcher.Constraint("DistanceX", 3, 2, 3, 1, Q("183.685927 mm")),
    Sketcher.Constraint("DistanceY", 4, 1, 4, 2, Q("194.899216 mm")),
    Sketcher.Constraint("DistanceX", 3, 2, -1, 1, Q("93.97424 mm")),
])
sketch8.setExpression("Constraints[17]", "Params.sketch8_width")
sketch8.setExpression("Constraints[18]", "Params.sketch8_height")
pocket4 = body.newObject("PartDesign::Pocket", "Pocket003")
pocket4.Profile = sketch8
pocket4.setExpression("Length", "Params.pocket4_length")
pocket4.Reversed = True

# Sketch on XY plane
sketch9 = body.newObject("Sketcher::SketchObject", "Sketch008")
sketch9.AttachmentSupport = (doc.getObject("XY_Plane"), [""])
sketch9.MapMode = "FlatFace"
sketch9.AttachmentOffset = App.Placement(App.Vector(0, 0, 8), App.Rotation())
sketch9.addGeometry([
    Part.Circle(App.Vector(214.3, -63.2, 0), App.Vector(0, 0, 1), 1.5),
    Part.Circle(App.Vector(112.7, -63.2, 0), App.Vector(0, 0, 1), 1.5),
    Part.Circle(App.Vector(172.7, -63.2, 0), App.Vector(0, 0, 1), 1.5),
], False)
sketch9.addConstraint([
    Sketcher.Constraint("Equal", 0, 1),
    Sketcher.Constraint("Equal", 1, 2),
    Sketcher.Constraint("Horizontal", 0, 3, 1, 3),
    Sketcher.Constraint("Horizontal", 1, 3, 2, 3),
    Sketcher.Constraint("Diameter", 0, Q("3 mm")),
    Sketcher.Constraint("DistanceX", 1, 3, 0, 3, Q("101.6 mm")),
    Sketcher.Constraint("DistanceX", 2, 3, 0, 3, Q("41.61 mm")),
    Sketcher.Constraint("DistanceX", -1, 1, 0, 3, Q("214.26287 mm")),
    Sketcher.Constraint("DistanceY", 0, 3, -1, 1, Q("63.217305 mm")),
])
sketch9.setExpression("Constraints[4]", "Params.sketch9_diameter")
pocket5 = body.newObject("PartDesign::Pocket", "Pocket004")
pocket5.Profile = sketch9
pocket5.setExpression("Length", "Params.pocket5_length")

doc.recompute()
